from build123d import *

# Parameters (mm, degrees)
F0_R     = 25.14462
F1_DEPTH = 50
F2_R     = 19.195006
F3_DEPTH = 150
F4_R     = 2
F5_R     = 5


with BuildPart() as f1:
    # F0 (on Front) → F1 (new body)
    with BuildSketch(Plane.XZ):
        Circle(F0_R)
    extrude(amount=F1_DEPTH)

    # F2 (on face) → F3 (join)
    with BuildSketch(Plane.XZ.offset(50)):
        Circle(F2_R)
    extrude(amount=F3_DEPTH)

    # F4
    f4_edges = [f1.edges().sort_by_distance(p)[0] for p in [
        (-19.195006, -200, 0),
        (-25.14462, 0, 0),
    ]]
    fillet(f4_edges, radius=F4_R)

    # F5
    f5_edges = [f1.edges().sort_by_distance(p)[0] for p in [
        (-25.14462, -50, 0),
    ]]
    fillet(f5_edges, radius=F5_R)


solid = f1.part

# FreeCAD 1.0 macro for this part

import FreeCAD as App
import Part
import Sketcher

V = App.Vector


def edges_at(feature, points):
    """Names of the edges that pass closest to the given points."""
    edges = feature.Shape.Edges
    near = lambda p: min(range(len(edges)), key=lambda i: edges[i].distToShape(Part.Vertex(*p))[0])
    return sorted({f"Edge{near(p) + 1}" for p in points})

doc = App.newDocument("Part")
params = doc.addObject("Spreadsheet::Sheet", "Params")
for row, (alias, value) in enumerate([
    ("pad1_length", "50 mm"),
    ("pad2_length", "150 mm"),
    ("fillet_radius", "2 mm"),
    ("fillet2_radius", "5 mm"),
], start=1):
    params.set(f"A{row}", alias)
    params.set(f"B{row}", "=" + value)
    params.setAlias(f"B{row}", alias)

body = doc.addObject("PartDesign::Body", "Body")

sketch1 = doc.addObject("Sketcher::SketchObject", "Sketch")
body.addObject(sketch1)
sketch1.AttachmentSupport = (doc.XZ_Plane, [""])
sketch1.MapMode = "FlatFace"
sketch1.addGeometry(Part.Circle(V(0, 0, 0), V(0, 0, 1), 25.14462), False)
sketch1.addConstraint(Sketcher.Constraint("Coincident", 0, 3, -1, 1))
sketch1.addConstraint(Sketcher.Constraint("Diameter", 0, 50.28924))
pad1 = doc.addObject("PartDesign::Pad", "Pad")
body.addObject(pad1)
pad1.Profile = sketch1
pad1.setExpression("Length", "Params.pad1_length")

sketch2 = doc.addObject("Sketcher::SketchObject", "Sketch001")
body.addObject(sketch2)
sketch2.AttachmentSupport = (doc.XZ_Plane, [""])
sketch2.MapMode = "FlatFace"
sketch2.AttachmentOffset = App.Placement(V(0, 0, 50), App.Rotation())
sketch2.addGeometry(Part.Circle(V(0, 0, 0), V(0, 0, 1), 19.195006), False)
sketch2.addConstraint(Sketcher.Constraint("Coincident", 0, 3, -1, 1))
sketch2.addConstraint(Sketcher.Constraint("Diameter", 0, 38.390012))
pad2 = doc.addObject("PartDesign::Pad", "Pad001")
body.addObject(pad2)
pad2.Profile = sketch2
pad2.setExpression("Length", "Params.pad2_length")
doc.recompute()

fillet = doc.addObject("PartDesign::Fillet", "Fillet")
body.addObject(fillet)
fillet.Base = (pad2, edges_at(pad2, [(-19.195, -200, 0), (-25.145, 0, 0)]))
fillet.setExpression("Radius", "Params.fillet_radius")
doc.recompute()

fillet2 = doc.addObject("PartDesign::Fillet", "Fillet001")
body.addObject(fillet2)
fillet2.Base = (fillet, edges_at(fillet, [(-25.145, -50, 0)]))
fillet2.setExpression("Radius", "Params.fillet2_radius")

doc.recompute()
